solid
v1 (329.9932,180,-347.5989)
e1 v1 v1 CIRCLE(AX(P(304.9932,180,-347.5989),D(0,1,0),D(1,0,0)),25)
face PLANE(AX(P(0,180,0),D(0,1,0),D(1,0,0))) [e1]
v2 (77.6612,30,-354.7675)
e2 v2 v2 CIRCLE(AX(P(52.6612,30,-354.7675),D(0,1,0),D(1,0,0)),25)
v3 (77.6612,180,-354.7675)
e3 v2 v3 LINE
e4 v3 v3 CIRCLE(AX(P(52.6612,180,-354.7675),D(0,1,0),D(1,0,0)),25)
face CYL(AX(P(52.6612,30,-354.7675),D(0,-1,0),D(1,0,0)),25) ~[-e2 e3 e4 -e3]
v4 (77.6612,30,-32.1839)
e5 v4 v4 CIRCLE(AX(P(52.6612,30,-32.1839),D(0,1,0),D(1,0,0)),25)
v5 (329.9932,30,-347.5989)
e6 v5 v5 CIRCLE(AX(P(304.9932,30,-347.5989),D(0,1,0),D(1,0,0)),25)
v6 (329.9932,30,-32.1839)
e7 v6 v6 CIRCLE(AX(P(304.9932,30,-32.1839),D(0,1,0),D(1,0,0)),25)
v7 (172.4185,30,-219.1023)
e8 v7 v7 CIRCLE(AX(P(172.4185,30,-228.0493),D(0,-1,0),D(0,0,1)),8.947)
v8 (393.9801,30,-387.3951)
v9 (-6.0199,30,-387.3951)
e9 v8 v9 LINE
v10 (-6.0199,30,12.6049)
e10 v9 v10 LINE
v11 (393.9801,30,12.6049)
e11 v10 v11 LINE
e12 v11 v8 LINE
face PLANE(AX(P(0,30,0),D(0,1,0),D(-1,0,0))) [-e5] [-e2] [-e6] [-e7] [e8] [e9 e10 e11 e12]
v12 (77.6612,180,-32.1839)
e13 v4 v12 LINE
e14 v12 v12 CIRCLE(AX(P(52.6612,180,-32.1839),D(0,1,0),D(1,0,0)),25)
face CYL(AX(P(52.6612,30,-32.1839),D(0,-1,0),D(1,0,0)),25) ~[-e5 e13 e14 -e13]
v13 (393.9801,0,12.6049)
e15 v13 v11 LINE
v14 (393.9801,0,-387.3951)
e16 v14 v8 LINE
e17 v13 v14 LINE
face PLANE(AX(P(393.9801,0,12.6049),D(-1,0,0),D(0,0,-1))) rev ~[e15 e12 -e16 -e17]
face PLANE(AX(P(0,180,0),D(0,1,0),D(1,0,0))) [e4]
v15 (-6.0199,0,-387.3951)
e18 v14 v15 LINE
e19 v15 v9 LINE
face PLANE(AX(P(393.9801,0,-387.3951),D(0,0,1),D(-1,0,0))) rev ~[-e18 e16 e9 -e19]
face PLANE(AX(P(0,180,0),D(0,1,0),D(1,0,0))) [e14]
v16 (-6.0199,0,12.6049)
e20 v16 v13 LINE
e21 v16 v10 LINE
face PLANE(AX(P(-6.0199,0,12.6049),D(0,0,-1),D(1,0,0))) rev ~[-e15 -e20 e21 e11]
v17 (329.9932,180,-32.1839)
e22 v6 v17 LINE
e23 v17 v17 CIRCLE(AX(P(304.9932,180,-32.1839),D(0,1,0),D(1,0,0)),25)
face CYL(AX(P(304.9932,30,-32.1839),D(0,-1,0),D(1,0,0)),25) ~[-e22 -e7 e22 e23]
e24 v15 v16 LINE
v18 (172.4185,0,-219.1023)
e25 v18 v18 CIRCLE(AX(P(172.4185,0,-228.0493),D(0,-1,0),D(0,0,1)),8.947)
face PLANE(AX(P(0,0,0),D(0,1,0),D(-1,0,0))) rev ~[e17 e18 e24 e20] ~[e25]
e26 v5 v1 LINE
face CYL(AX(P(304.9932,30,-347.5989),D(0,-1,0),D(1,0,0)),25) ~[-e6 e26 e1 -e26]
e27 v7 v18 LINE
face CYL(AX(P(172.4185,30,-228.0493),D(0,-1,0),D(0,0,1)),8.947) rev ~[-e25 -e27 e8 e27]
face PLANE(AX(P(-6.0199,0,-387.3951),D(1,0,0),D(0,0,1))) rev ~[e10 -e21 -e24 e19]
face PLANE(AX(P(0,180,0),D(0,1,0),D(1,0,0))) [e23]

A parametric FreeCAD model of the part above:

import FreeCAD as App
import Part
import Sketcher

V = App.Vector
Q = App.Units.Quantity


def add_polygon(sketch, points):
    """Adds a closed chain of lines whose ends are joined by coincident constraints."""
    first, n = sketch.GeometryCount, len(points)
    for a, b in zip(points, points[1:] + points[:1]):
        sketch.addGeometry(Part.LineSegment(App.Vector(*a, 0), App.Vector(*b, 0)), False)
    for i in range(n):
        sketch.addConstraint(Sketcher.Constraint("Coincident", first + i, 2, first + (i + 1) % n, 1))

doc = App.newDocument("Part")
body = doc.addObject("PartDesign::Body", "Body")

# Sketch on XZ plane
sketch1 = body.newObject("Sketcher::SketchObject", "Sketch")
sketch1.AttachmentSupport = (doc.getObject("XZ_Plane"), [""])
sketch1.MapMode = "FlatFace"
add_polygon(sketch1, [(-6.0199, -387.3951), (-6.0199, 12.6049), (393.9801, 12.6049), (393.9801, -387.3951)])  # lines 0-3
sketch1.addConstraint([
    Sketcher.Constraint("Vertical", 0),
    Sketcher.Constraint("Horizontal", 1),
    Sketcher.Constraint("Vertical", 2),
    Sketcher.Constraint("Horizontal", 3),
    Sketcher.Constraint("Equal", 3, 0),
    Sketcher.Constraint("DistanceX", 1, 1, 1, 2, Q("400 mm")),
    Sketcher.Constraint("DistanceX", 0, 2, -1, 1, Q("6.02 mm")),
    Sketcher.Constraint("DistanceY", -1, 1, 0, 2, Q("12.605 mm")),
])
pad1 = body.newObject("PartDesign::Pad", "Pad")
pad1.Profile = sketch1
pad1.Length = 30
pad1.Reversed = True

# Sketch on XZ plane
sketch2 = body.newObject("Sketcher::SketchObject", "Sketch001")
sketch2.AttachmentSupport = (doc.getObject("XZ_Plane"), [""])
sketch2.MapMode = "FlatFace"
sketch2.AttachmentOffset = App.Placement(V(0, 0, -30), App.Rotation())
sketch2.addGeometry([
    Part.Circle(V(52.6612, -32.1839, 0), V(0, 0, 1), 25),
    Part.Circle(V(304.9932, -32.1839, 0), V(0, 0, 1), 25),
    Part.Circle(V(304.9932, -347.5989, 0), V(0, 0, 1), 25),
    Part.Circle(V(52.6612, -354.7675, 0), V(0, 0, 1), 25),
], False)
sketch2.addConstraint([
    Sketcher.Constraint("Equal", 0, 1),
    Sketcher.Constraint("Equal", 1, 2),
    Sketcher.Constraint("Equal", 2, 3),
    Sketcher.Constraint("Horizontal", 0, 3, 1, 3),
    Sketcher.Constraint("Vertical", 1, 3, 2, 3),
    Sketcher.Constraint("Vertical", 0, 3, 3, 3),
    Sketcher.Constraint("Diameter", 0, Q("50 mm")),
    Sketcher.Constraint("DistanceY", 0, 3, -1, 1, Q("32.184 mm")),
    Sketcher.Constraint("DistanceY", 2, 3, -1, 1, Q("347.599 mm")),
    Sketcher.Constraint("DistanceX", 0, 3, 1, 3, Q("252.332 mm")),
    Sketcher.Constraint("DistanceX", -1, 1, 0, 3, Q("52.6612 mm")),
    Sketcher.Constraint("DistanceY", 3, 3, -1, 1, Q("354.7675 mm")),
])
pad2 = body.newObject("PartDesign::Pad", "Pad001")
pad2.Profile = sketch2
pad2.Length = 150
pad2.Reversed = True

# Sketch on XZ plane
sketch3 = body.newObject("Sketcher::SketchObject", "Sketch002")
sketch3.AttachmentSupport = (doc.getObject("XZ_Plane"), [""])
sketch3.MapMode = "FlatFace"
sketch3.AttachmentOffset = App.Placement(V(0, 0, -30), App.Rotation())
sketch3.addGeometry(Part.Circle(V(172.4185, -228.0493, 0), V(0, 0, 1), 8.947), False)
sketch3.addConstraint([
    Sketcher.Constraint("Diameter", 0, Q("17.894 mm")),
    Sketcher.Constraint("DistanceX", -1, 1, 0, 3, Q("172.4185 mm")),
    Sketcher.Constraint("DistanceY", 0, 3, -1, 1, Q("228.0493 mm")),
])
doc.recompute()
hole = body.newObject("PartDesign::Hole", "Hole")
hole.Profile = sketch3
hole.ThreadType = "None"
hole.Diameter = 17.894
hole.DepthType = "Dimension"
hole.Depth = 53.975
hole.DrillPoint = "Angled"
hole.DrillPointAngle = 118
hole.Reversed = True

doc.recompute()
